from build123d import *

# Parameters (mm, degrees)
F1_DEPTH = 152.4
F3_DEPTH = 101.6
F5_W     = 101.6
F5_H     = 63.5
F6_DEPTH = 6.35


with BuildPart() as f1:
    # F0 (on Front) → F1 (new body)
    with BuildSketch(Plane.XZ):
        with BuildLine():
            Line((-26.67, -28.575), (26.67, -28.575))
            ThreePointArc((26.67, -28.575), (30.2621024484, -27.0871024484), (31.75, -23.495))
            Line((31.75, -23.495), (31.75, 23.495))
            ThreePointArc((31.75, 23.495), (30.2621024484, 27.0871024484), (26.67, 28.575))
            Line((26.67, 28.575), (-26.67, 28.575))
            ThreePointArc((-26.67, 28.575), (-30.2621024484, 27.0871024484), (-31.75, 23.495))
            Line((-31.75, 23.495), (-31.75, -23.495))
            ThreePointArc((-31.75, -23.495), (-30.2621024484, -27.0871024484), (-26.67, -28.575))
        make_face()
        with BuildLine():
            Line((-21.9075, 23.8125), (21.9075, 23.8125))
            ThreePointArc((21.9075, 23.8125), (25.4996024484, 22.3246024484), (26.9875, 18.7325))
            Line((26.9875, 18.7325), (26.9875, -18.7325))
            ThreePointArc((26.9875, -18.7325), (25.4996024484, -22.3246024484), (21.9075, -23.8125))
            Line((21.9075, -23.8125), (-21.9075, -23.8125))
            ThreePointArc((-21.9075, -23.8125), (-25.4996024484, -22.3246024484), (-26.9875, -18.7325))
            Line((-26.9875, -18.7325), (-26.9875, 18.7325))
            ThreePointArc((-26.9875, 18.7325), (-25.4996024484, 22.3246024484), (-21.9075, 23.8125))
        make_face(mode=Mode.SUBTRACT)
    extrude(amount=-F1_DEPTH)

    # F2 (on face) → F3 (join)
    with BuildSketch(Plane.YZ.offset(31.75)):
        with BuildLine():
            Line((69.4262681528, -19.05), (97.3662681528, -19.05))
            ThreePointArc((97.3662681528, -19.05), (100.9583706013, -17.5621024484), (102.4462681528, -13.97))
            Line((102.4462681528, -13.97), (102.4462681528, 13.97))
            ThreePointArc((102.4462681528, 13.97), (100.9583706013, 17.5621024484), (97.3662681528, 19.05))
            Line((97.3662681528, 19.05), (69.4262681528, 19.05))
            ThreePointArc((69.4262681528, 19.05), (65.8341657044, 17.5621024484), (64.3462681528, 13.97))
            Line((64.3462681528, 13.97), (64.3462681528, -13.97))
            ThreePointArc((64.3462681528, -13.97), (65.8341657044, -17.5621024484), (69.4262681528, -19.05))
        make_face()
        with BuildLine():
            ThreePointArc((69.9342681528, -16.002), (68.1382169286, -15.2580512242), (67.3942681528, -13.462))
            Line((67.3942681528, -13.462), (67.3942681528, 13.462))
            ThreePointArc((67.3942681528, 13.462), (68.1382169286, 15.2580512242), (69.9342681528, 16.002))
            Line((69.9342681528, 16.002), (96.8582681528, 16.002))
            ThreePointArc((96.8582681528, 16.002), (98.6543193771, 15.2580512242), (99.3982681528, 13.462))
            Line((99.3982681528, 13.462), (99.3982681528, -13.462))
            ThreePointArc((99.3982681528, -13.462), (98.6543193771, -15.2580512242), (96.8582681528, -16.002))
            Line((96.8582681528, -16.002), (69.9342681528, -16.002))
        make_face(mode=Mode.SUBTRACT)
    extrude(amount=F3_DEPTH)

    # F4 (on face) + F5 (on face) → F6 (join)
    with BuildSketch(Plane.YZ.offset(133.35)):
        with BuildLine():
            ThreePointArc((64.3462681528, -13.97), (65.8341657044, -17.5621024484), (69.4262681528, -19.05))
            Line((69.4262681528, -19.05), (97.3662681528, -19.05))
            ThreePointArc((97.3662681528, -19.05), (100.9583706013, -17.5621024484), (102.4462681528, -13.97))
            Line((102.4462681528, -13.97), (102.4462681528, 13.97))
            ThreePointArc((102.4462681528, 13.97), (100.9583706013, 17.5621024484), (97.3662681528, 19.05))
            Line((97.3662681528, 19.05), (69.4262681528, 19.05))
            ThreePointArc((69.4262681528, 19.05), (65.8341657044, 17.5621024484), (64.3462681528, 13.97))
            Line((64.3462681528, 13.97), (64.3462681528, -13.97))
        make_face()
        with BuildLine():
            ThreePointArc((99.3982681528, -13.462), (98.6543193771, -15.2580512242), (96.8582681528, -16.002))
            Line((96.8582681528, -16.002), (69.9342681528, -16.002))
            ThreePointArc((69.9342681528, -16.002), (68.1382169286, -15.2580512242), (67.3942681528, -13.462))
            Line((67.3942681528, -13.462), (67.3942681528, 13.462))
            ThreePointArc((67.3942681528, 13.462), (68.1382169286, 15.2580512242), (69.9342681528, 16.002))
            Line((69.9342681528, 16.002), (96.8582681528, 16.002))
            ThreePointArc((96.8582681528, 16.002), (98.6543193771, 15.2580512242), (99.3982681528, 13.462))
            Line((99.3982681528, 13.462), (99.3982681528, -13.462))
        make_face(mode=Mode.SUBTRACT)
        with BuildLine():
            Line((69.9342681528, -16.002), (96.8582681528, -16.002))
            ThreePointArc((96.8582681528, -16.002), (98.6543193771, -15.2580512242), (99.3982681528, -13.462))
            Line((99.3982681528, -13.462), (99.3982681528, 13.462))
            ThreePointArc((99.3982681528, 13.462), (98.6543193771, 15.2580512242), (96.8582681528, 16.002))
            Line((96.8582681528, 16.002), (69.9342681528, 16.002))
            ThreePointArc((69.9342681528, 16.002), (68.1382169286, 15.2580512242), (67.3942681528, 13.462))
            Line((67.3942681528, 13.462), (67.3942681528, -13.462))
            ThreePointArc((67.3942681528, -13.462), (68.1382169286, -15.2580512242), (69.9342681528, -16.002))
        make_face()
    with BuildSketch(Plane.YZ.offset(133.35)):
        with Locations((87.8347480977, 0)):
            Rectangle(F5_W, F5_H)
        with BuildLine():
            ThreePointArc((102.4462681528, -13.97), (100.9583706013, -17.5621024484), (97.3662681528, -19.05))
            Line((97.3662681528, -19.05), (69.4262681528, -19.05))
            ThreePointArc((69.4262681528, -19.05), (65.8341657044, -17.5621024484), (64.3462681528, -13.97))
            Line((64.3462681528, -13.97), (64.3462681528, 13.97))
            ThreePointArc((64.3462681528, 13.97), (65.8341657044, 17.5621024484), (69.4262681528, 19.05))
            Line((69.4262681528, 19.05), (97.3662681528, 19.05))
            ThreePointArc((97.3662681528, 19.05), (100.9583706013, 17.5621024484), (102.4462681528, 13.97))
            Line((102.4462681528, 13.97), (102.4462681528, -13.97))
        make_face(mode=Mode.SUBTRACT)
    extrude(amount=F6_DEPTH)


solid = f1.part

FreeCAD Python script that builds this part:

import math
import FreeCAD as App
import Part
import Sketcher

V = App.Vector
Q = App.Units.Quantity

doc = App.newDocument("Part")
params = doc.addObject("Spreadsheet::Sheet", "Params")
for row, (alias, value) in enumerate([
    ("sketch1_radius", "0.2 in"),
    ("sketch1_width", "2.1 in"),
    ("sketch1_height", "1.85 in"),
    ("sketch1_width2", "1.725 in"),
    ("sketch1_height2", "1.475 in"),
    ("pad1_length", "6 in"),
    ("sketch2_radius", "0.2 in"),
    ("sketch2_radius2", "0.1 in"),
    ("sketch2_width", "1.1 in"),
    ("sketch2_width2", "1.06 in"),
    ("pad2_length", "4 in"),
    ("sketch3_width", "4 in"),
    ("sketch3_height", "2.5 in"),
    ("pad3_length", "0.25 in"),
], start=1):
    params.set(f"A{row}", alias)
    params.set(f"B{row}", "=" + value)
    params.setAlias(f"B{row}", alias)

body = doc.addObject("PartDesign::Body", "Body")

# Sketch on XZ plane
sketch1 = doc.addObject("Sketcher::SketchObject", "Sketch")
body.addObject(sketch1)
sketch1.AttachmentSupport = (doc.XZ_Plane, [""])
sketch1.MapMode = "FlatFace"
sketch1.addGeometry([
    Part.LineSegment(V(-27, -29, 0), V(27, -29, 0)),  # 0
    Part.ArcOfCircle(Part.Circle(V(27, -23, 0), V(0, 0, 1), 5), math.radians(-90), math.radians(0)),  # 1
    Part.LineSegment(V(32, -23, 0), V(32, 23, 0)),  # 2
    Part.ArcOfCircle(Part.Circle(V(27, 23, 0), V(0, 0, 1), 5), math.radians(0), math.radians(90)),  # 3
    Part.LineSegment(V(27, 29, 0), V(-27, 29, 0)),  # 4
    Part.ArcOfCircle(Part.Circle(V(-27, 23, 0), V(0, 0, 1), 5), math.radians(90), math.radians(180)),  # 5
    Part.LineSegment(V(-32, 23, 0), V(-32, -23, 0)),  # 6
    Part.ArcOfCircle(Part.Circle(V(-27, -23, 0), V(0, 0, 1), 5), math.radians(180), math.radians(270)),  # 7
    Part.ArcOfCircle(Part.Circle(V(-22, 19, 0), V(0, 0, 1), 5), math.radians(90), math.radians(180)),  # 8
    Part.LineSegment(V(-22, 24, 0), V(22, 24, 0)),  # 9
    Part.ArcOfCircle(Part.Circle(V(22, 19, 0), V(0, 0, 1), 5), math.radians(0), math.radians(90)),  # 10
    Part.LineSegment(V(27, 19, 0), V(27, -19, 0)),  # 11
    Part.ArcOfCircle(Part.Circle(V(22, -19, 0), V(0, 0, 1), 5), math.radians(-90), math.radians(0)),  # 12
    Part.LineSegment(V(22, -24, 0), V(-22, -24, 0)),  # 13
    Part.ArcOfCircle(Part.Circle(V(-22, -19, 0), V(0, 0, 1), 5), math.radians(180), math.radians(270)),  # 14
    Part.LineSegment(V(-27, -19, 0), V(-27, 19, 0)),  # 15
], False)
sketch1.addConstraint([
    Sketcher.Constraint("Tangent", 0, 2, 1, 1),
    Sketcher.Constraint("Tangent", 1, 2, 2, 1),
    Sketcher.Constraint("Tangent", 2, 2, 3, 1),
    Sketcher.Constraint("Tangent", 3, 2, 4, 1),
    Sketcher.Constraint("Tangent", 4, 2, 5, 1),
    Sketcher.Constraint("Tangent", 5, 2, 6, 1),
    Sketcher.Constraint("Tangent", 6, 2, 7, 1),
    Sketcher.Constraint("Tangent", 7, 2, 0, 1),
    Sketcher.Constraint("Tangent", 8, 1, 9, 1),
    Sketcher.Constraint("Tangent", 9, 2, 10, 2),
    Sketcher.Constraint("Tangent", 10, 1, 11, 1),
    Sketcher.Constraint("Tangent", 11, 2, 12, 2),
    Sketcher.Constraint("Tangent", 12, 1, 13, 1),
    Sketcher.Constraint("Tangent", 13, 2, 14, 2),
    Sketcher.Constraint("Tangent", 14, 1, 15, 1),
    Sketcher.Constraint("Tangent", 15, 2, 8, 2),
    Sketcher.Constraint("Horizontal", 0),
    Sketcher.Constraint("Vertical", 2),
    Sketcher.Constraint("Horizontal", 4),
    Sketcher.Constraint("Vertical", 6),
    Sketcher.Constraint("Horizontal", 9),
    Sketcher.Constraint("Vertical", 11),
    Sketcher.Constraint("Horizontal", 13),
    Sketcher.Constraint("Vertical", 15),
    Sketcher.Constraint("Equal", 1, 3),
    Sketcher.Constraint("Equal", 3, 5),
    Sketcher.Constraint("Equal", 5, 7),
    Sketcher.Constraint("Equal", 7, 8),
    Sketcher.Constraint("Equal", 8, 10),
    Sketcher.Constraint("Equal", 10, 12),
    Sketcher.Constraint("Equal", 12, 14),
    Sketcher.Constraint("Symmetric", 1, 3, 5, 3, -1, 1),
    Sketcher.Constraint("Symmetric", 8, 3, 12, 3, -1, 1),
    Sketcher.Constraint("Radius", 1, Q("0.2 in")),
    Sketcher.Constraint("DistanceX", 0, 1, 0, 2, Q("2.1 in")),
    Sketcher.Constraint("DistanceY", 2, 1, 2, 2, Q("1.85 in")),
    Sketcher.Constraint("DistanceX", 9, 1, 9, 2, Q("1.725 in")),
    Sketcher.Constraint("DistanceY", 11, 2, 11, 1, Q("1.475 in")),
])
sketch1.setExpression("Constraints[33]", "Params.sketch1_radius")
sketch1.setExpression("Constraints[34]", "Params.sketch1_width")
sketch1.setExpression("Constraints[35]", "Params.sketch1_height")
sketch1.setExpression("Constraints[36]", "Params.sketch1_width2")
sketch1.setExpression("Constraints[37]", "Params.sketch1_height2")
pad1 = doc.addObject("PartDesign::Pad", "Pad")
body.addObject(pad1)
pad1.Profile = sketch1
pad1.setExpression("Length", "Params.pad1_length")
pad1.Reversed = True

# Sketch on YZ plane
sketch2 = doc.addObject("Sketcher::SketchObject", "Sketch001")
body.addObject(sketch2)
sketch2.AttachmentSupport = (doc.YZ_Plane, [""])
sketch2.MapMode = "FlatFace"
sketch2.AttachmentOffset = App.Placement(V(0, 0, 1.25 * 25.4), App.Rotation())
sketch2.addGeometry([
    Part.LineSegment(V(69.4, -19.1, 0), V(97.4, -19.1, 0)),  # 0
    Part.ArcOfCircle(Part.Circle(V(97.4, -14, 0), V(0, 0, 1), 5.1), math.radians(-90), math.radians(0)),  # 1
    Part.LineSegment(V(102.4, -14, 0), V(102.4, 14, 0)),  # 2
    Part.ArcOfCircle(Part.Circle(V(97.4, 14, 0), V(0, 0, 1), 5.1), math.radians(0), math.radians(90)),  # 3
    Part.LineSegment(V(97.4, 19.1, 0), V(69.4, 19.1, 0)),  # 4
    Part.ArcOfCircle(Part.Circle(V(69.4, 14, 0), V(0, 0, 1), 5.1), math.radians(90), math.radians(180)),  # 5
    Part.LineSegment(V(64.3, 14, 0), V(64.3, -14, 0)),  # 6
    Part.ArcOfCircle(Part.Circle(V(69.4, -14, 0), V(0, 0, 1), 5.1), math.radians(180), math.radians(270)),  # 7
    Part.LineSegment(V(96.9, -16, 0), V(69.9, -16, 0)),  # 8
    Part.ArcOfCircle(Part.Circle(V(69.9, -13.5, 0), V(0, 0, 1), 2.5), math.radians(180), math.radians(270)),  # 9
    Part.LineSegment(V(67.4, -13.5, 0), V(67.4, 13.5, 0)),  # 10
    Part.ArcOfCircle(Part.Circle(V(69.9, 13.5, 0), V(0, 0, 1), 2.5), math.radians(90), math.radians(180)),  # 11
    Part.LineSegment(V(69.9, 16, 0), V(96.9, 16, 0)),  # 12
    Part.ArcOfCircle(Part.Circle(V(96.9, 13.5, 0), V(0, 0, 1), 2.5), math.radians(0), math.radians(90)),  # 13
    Part.LineSegment(V(99.4, 13.5, 0), V(99.4, -13.5, 0)),  # 14
    Part.ArcOfCircle(Part.Circle(V(96.9, -13.5, 0), V(0, 0, 1), 2.5), math.radians(-90), math.radians(0)),  # 15
], False)
sketch2.addConstraint([
    Sketcher.Constraint("Tangent", 0, 2, 1, 1),
    Sketcher.Constraint("Tangent", 1, 2, 2, 1),
    Sketcher.Constraint("Tangent", 2, 2, 3, 1),
    Sketcher.Constraint("Tangent", 3, 2, 4, 1),
    Sketcher.Constraint("Tangent", 4, 2, 5, 1),
    Sketcher.Constraint("Tangent", 5, 2, 6, 1),
    Sketcher.Constraint("Tangent", 6, 2, 7, 1),
    Sketcher.Constraint("Tangent", 7, 2, 0, 1),
    Sketcher.Constraint("Tangent", 8, 2, 9, 2),
    Sketcher.Constraint("Tangent", 9, 1, 10, 1),
    Sketcher.Constraint("Tangent", 10, 2, 11, 2),
    Sketcher.Constraint("Tangent", 11, 1, 12, 1),
    Sketcher.Constraint("Tangent", 12, 2, 13, 2),
    Sketcher.Constraint("Tangent", 13, 1, 14, 1),
    Sketcher.Constraint("Tangent", 14, 2, 15, 2),
    Sketcher.Constraint("Tangent", 15, 1, 8, 1),
    Sketcher.Constraint("Horizontal", 0),
    Sketcher.Constraint("Vertical", 2),
    Sketcher.Constraint("Horizontal", 4),
    Sketcher.Constraint("Vertical", 6),
    Sketcher.Constraint("Horizontal", 8),
    Sketcher.Constraint("Vertical", 10),
    Sketcher.Constraint("Horizontal", 12),
    Sketcher.Constraint("Vertical", 14),
    Sketcher.Constraint("Equal", 1, 3),
    Sketcher.Constraint("Equal", 3, 5),
    Sketcher.Constraint("Equal", 5, 7),
    Sketcher.Constraint("Equal", 9, 11),
    Sketcher.Constraint("Equal", 11, 13),
    Sketcher.Constraint("Equal", 13, 15),
    Sketcher.Constraint("Equal", 4, 2),
    Sketcher.Constraint("Equal", 12, 10),
    Sketcher.Constraint("Radius", 1, Q("0.2 in")),
    Sketcher.Constraint("Radius", 9, Q("0.1 in")),
    Sketcher.Constraint("DistanceX", 0, 1, 0, 2, Q("1.1 in")),
    Sketcher.Constraint("DistanceX", 8, 2, 8, 1, Q("1.06 in")),
    Sketcher.Constraint("DistanceY", 1, 3, -1, 1, Q("0.55 in")),
    Sketcher.Constraint("DistanceY", 9, 3, -1, 1, Q("0.53 in")),
    Sketcher.Constraint("DistanceX", 7, 3, 9, 3, Q("0.02 in")),
    Sketcher.Constraint("DistanceX", -1, 1, 1, 3, Q("97.366268 mm")),
])
sketch2.setExpression("Constraints[32]", "Params.sketch2_radius")
sketch2.setExpression("Constraints[33]", "Params.sketch2_radius2")
sketch2.setExpression("Constraints[34]", "Params.sketch2_width")
sketch2.setExpression("Constraints[35]", "Params.sketch2_width2")
pad2 = doc.addObject("PartDesign::Pad", "Pad001")
body.addObject(pad2)
pad2.Profile = sketch2
pad2.setExpression("Length", "Params.pad2_length")

# Sketch on YZ plane
sketch3 = doc.addObject("Sketcher::SketchObject", "Sketch002")
body.addObject(sketch3)
sketch3.AttachmentSupport = (doc.YZ_Plane, [""])
sketch3.MapMode = "FlatFace"
sketch3.AttachmentOffset = App.Placement(V(0, 0, 5.25 * 25.4), App.Rotation())
sketch3.addGeometry([
    Part.LineSegment(V(37, 32, 0), V(37, -32, 0)),
    Part.LineSegment(V(37, -32, 0), V(139, -32, 0)),
    Part.LineSegment(V(139, -32, 0), V(139, 32, 0)),
    Part.LineSegment(V(139, 32, 0), V(37, 32, 0)),
], False)
sketch3.addConstraint([
    Sketcher.Constraint("Coincident", 0, 2, 1, 1),
    Sketcher.Constraint("Coincident", 1, 2, 2, 1),
    Sketcher.Constraint("Coincident", 2, 2, 3, 1),
    Sketcher.Constraint("Coincident", 3, 2, 0, 1),
    Sketcher.Constraint("Vertical", 0),
    Sketcher.Constraint("Horizontal", 1),
    Sketcher.Constraint("Vertical", 2),
    Sketcher.Constraint("Horizontal", 3),
    Sketcher.Constraint("DistanceX", 1, 1, 1, 2, Q("4 in")),
    Sketcher.Constraint("DistanceY", 0, 2, 0, 1, Q("2.5 in")),
    Sketcher.Constraint("DistanceY", 0, 2, -1, 1, Q("1.25 in")),
    Sketcher.Constraint("DistanceX", -1, 1, 0, 2, Q("37.034748 mm")),
])
sketch3.setExpression("Constraints[8]", "Params.sketch3_width")
sketch3.setExpression("Constraints[9]", "Params.sketch3_height")
pad3 = doc.addObject("PartDesign::Pad", "Pad002")
body.addObject(pad3)
pad3.Profile = sketch3
pad3.setExpression("Length", "Params.pad3_length")

doc.recompute()
